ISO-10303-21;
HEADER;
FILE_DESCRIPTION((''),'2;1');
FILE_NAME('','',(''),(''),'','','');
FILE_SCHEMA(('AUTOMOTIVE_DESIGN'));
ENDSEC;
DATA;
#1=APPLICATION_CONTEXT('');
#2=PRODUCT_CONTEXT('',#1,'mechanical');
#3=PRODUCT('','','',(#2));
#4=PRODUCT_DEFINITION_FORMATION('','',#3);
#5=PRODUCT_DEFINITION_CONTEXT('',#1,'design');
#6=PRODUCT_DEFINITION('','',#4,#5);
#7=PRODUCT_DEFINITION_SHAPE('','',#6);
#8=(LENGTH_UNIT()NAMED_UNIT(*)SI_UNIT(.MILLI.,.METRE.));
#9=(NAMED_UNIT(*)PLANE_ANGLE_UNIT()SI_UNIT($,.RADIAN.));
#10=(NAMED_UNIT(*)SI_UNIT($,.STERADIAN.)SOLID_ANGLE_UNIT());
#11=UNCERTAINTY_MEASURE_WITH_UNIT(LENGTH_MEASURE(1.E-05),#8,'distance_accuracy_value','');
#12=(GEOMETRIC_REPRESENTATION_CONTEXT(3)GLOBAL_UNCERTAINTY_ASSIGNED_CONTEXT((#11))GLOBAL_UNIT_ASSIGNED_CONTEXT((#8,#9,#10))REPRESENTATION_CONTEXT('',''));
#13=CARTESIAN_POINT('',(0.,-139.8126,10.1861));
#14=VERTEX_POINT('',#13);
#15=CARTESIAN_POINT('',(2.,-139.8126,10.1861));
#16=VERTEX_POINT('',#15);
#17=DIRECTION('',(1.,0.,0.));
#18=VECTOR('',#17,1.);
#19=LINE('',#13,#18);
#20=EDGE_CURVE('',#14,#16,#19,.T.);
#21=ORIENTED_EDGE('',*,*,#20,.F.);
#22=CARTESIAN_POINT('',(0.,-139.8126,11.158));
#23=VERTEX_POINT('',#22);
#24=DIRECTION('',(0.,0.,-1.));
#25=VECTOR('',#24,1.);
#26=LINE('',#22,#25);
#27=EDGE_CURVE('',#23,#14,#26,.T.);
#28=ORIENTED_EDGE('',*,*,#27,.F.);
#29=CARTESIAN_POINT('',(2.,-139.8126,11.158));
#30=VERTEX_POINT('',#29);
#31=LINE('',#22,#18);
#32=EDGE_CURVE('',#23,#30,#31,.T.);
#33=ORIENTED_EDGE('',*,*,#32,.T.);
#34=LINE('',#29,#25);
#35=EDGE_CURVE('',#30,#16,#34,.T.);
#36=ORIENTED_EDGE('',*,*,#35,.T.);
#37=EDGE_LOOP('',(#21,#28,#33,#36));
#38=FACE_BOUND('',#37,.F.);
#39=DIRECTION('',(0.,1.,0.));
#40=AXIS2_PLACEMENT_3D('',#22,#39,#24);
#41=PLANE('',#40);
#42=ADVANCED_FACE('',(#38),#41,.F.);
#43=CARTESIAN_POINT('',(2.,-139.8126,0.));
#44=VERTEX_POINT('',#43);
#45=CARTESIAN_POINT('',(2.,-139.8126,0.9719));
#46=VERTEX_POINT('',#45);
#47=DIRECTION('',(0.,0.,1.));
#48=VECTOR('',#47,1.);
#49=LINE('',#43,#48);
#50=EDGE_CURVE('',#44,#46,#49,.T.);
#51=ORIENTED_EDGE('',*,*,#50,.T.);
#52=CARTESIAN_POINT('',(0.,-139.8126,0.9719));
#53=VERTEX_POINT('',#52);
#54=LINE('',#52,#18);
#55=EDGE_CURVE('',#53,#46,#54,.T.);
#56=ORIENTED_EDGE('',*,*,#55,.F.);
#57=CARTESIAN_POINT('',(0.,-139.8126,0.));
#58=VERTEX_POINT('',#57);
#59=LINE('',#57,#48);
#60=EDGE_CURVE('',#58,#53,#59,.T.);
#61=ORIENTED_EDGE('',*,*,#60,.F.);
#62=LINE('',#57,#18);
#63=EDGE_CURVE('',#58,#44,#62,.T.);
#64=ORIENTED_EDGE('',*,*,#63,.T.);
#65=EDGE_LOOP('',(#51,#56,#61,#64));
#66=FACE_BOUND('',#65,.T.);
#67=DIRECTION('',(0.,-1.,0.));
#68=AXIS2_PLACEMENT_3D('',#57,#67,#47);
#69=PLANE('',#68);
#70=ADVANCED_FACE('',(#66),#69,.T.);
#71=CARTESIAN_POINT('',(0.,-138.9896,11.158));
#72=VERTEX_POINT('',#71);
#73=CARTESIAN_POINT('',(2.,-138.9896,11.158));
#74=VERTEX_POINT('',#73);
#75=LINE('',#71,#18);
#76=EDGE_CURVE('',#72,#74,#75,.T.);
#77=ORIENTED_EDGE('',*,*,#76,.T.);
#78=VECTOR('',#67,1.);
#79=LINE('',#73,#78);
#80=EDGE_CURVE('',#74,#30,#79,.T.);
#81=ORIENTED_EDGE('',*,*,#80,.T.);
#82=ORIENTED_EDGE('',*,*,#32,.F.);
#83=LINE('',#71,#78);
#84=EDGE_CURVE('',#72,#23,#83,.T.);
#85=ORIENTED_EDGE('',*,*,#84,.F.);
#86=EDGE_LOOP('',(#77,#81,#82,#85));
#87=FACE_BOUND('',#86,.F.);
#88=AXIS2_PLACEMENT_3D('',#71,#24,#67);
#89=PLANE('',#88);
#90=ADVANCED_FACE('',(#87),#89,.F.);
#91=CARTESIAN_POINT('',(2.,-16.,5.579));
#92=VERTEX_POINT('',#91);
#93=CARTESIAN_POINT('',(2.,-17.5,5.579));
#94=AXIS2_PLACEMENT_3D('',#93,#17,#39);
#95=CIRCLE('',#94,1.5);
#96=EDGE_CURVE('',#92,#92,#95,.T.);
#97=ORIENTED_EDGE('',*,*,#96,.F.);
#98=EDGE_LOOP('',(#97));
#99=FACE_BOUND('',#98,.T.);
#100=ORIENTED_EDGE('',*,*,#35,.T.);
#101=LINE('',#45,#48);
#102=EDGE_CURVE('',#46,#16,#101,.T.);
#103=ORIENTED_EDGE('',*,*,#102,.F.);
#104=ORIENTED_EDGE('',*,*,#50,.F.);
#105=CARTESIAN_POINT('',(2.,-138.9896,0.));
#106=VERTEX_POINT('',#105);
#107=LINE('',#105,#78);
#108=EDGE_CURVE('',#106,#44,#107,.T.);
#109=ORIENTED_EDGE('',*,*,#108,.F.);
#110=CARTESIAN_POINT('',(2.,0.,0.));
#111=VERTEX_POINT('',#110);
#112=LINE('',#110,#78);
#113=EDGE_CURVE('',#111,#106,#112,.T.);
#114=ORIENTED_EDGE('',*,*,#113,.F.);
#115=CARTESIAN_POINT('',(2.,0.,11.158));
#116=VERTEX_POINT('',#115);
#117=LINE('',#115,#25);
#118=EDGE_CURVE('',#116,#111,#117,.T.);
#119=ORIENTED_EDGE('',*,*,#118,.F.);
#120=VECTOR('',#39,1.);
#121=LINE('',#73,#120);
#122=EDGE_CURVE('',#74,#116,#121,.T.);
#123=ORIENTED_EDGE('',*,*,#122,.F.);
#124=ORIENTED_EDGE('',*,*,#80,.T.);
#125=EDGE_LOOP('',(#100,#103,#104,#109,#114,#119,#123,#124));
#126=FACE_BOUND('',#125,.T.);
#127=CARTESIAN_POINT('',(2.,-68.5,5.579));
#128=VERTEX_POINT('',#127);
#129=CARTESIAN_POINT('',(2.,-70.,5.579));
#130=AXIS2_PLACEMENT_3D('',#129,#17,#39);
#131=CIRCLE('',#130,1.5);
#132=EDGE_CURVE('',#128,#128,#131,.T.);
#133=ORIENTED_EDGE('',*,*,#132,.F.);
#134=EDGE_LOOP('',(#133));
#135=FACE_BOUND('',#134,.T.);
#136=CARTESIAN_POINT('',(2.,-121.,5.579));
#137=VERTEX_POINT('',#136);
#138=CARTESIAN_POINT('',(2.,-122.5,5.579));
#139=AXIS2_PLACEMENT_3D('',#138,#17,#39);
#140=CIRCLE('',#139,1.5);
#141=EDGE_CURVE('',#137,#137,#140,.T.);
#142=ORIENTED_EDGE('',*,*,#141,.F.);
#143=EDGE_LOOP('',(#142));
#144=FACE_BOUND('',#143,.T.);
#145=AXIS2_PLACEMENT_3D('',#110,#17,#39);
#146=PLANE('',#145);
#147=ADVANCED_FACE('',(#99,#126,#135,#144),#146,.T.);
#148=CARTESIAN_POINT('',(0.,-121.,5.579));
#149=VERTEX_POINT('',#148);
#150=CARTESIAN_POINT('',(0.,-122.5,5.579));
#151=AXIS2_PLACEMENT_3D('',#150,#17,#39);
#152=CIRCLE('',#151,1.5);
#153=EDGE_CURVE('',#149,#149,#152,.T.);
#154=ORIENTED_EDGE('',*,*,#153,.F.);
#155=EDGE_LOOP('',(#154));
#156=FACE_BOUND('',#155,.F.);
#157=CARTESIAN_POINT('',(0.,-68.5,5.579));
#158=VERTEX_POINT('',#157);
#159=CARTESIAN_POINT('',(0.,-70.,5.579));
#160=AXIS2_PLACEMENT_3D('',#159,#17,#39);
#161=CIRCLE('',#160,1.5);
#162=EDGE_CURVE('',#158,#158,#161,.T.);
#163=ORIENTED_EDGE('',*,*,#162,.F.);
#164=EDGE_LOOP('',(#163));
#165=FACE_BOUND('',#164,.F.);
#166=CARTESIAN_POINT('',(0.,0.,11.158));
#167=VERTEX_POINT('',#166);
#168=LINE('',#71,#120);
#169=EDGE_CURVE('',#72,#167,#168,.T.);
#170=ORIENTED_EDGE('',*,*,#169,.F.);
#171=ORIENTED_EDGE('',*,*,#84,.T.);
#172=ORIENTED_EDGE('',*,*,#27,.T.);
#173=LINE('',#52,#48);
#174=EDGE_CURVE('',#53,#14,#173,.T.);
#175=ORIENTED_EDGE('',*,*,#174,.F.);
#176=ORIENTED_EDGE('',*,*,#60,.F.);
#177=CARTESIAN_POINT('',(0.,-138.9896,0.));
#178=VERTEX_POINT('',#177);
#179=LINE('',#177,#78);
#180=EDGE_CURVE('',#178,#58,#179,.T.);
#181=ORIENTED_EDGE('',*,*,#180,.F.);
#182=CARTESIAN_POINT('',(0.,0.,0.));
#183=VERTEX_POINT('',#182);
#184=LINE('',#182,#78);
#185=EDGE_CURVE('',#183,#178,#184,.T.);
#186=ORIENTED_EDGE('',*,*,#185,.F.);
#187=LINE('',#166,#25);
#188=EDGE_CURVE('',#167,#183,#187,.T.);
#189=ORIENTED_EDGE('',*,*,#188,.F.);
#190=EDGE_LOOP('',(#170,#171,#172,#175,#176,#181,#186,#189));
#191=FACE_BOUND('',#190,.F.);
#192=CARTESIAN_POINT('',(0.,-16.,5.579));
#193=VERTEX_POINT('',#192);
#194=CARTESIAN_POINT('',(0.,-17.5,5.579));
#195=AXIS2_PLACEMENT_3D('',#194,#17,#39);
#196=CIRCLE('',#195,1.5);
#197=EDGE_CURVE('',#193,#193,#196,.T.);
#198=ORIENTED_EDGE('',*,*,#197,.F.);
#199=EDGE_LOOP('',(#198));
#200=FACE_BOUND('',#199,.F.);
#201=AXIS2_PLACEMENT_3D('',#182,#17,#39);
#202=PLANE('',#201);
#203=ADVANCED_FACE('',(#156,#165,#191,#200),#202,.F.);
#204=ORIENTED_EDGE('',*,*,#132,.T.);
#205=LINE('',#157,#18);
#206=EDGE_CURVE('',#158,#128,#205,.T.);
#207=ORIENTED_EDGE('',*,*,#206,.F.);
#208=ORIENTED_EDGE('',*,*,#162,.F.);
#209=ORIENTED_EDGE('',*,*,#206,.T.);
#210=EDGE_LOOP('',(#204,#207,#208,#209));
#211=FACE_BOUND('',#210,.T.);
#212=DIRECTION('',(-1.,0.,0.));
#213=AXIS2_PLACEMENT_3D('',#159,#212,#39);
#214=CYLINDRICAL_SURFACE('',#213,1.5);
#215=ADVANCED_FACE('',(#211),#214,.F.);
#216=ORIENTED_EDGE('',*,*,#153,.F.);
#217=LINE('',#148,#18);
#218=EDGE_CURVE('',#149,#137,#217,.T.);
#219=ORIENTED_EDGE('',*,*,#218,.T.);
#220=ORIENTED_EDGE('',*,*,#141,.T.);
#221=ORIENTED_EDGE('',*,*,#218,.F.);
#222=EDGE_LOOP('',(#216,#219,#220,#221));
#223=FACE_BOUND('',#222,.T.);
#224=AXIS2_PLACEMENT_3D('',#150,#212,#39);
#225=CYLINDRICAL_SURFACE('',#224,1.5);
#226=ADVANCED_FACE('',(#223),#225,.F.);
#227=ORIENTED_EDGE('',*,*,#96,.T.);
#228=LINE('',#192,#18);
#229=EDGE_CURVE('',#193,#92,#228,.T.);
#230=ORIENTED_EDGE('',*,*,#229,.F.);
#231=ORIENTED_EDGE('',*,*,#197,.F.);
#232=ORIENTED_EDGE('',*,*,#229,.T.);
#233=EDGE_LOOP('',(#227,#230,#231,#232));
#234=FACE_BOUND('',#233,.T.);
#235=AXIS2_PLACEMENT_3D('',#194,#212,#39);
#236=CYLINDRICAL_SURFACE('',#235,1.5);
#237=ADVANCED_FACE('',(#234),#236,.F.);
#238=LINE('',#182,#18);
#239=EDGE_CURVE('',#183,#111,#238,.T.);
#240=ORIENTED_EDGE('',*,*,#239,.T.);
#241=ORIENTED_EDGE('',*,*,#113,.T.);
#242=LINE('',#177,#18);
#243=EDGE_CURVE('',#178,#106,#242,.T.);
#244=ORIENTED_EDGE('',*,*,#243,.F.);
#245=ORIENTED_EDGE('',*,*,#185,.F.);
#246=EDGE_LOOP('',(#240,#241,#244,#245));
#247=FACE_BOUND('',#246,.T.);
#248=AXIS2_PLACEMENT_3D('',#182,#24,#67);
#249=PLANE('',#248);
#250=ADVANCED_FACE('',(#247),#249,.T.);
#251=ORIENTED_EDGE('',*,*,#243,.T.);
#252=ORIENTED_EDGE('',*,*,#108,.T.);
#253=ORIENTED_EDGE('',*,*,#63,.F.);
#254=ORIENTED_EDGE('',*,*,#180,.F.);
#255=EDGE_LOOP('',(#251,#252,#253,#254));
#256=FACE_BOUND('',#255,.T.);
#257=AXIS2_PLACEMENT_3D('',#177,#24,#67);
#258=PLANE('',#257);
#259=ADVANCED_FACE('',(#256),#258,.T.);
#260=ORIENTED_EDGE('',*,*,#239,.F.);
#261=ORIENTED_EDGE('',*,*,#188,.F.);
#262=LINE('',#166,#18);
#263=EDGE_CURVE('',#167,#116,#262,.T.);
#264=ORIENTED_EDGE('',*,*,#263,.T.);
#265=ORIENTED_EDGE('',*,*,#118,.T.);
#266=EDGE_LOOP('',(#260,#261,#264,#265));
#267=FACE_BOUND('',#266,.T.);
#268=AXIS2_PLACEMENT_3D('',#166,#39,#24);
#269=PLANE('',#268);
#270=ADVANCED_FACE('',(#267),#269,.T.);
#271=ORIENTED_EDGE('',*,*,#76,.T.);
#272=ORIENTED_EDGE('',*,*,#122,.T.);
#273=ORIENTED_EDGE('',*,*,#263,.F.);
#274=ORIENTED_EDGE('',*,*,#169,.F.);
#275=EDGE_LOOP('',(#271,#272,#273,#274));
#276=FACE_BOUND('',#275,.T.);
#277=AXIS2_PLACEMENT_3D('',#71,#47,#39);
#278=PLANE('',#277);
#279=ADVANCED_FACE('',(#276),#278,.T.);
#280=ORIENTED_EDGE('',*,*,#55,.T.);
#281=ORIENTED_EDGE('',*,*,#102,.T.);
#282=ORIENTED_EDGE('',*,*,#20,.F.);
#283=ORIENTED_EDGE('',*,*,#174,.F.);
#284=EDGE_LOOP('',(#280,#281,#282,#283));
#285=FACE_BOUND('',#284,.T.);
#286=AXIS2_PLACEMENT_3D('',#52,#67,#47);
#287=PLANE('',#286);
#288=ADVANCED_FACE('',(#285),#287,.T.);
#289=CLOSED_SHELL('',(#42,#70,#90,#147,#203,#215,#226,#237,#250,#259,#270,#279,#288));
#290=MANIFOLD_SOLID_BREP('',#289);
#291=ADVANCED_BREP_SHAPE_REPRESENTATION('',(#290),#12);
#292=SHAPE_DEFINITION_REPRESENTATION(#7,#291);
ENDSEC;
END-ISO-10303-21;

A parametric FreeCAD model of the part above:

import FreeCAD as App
import Part
import Sketcher

V = App.Vector


def add_polygon(sketch, points):
    """Adds a closed chain of lines whose ends are joined by coincident constraints."""
    first, n = sketch.GeometryCount, len(points)
    for a, b in zip(points, points[1:] + points[:1]):
        sketch.addGeometry(Part.LineSegment(App.Vector(*a, 0), App.Vector(*b, 0)), False)
    for i in range(n):
        sketch.addConstraint(Sketcher.Constraint("Coincident", first + i, 2, first + (i + 1) % n, 1))

doc = App.newDocument("Part")
body = doc.addObject("PartDesign::Body", "Body")

sketch1 = doc.addObject("Sketcher::SketchObject", "Sketch")
body.addObject(sketch1)
sketch1.AttachmentSupport = (doc.YZ_Plane, [""])
sketch1.MapMode = "FlatFace"
add_polygon(sketch1, [(0, 11.2), (-139.8, 11.2), (-139.8, 0), (0, 0)])
sketch1.addGeometry(Part.Circle(V(-122.5, 5.6, 0), V(0, 0, 1), 1.5), False)
sketch1.addGeometry(Part.Circle(V(-70, 5.6, 0), V(0, 0, 1), 1.5), False)
sketch1.addGeometry(Part.Circle(V(-17.5, 5.6, 0), V(0, 0, 1), 1.5), False)
sketch1.addConstraint(Sketcher.Constraint("Horizontal", 0))
sketch1.addConstraint(Sketcher.Constraint("Vertical", 1))
sketch1.addConstraint(Sketcher.Constraint("Horizontal", 2))
sketch1.addConstraint(Sketcher.Constraint("Vertical", 3))
sketch1.addConstraint(Sketcher.Constraint("Coincident", 2, 2, -1, 1))
sketch1.addConstraint(Sketcher.Constraint("Equal", 4, 5))
sketch1.addConstraint(Sketcher.Constraint("Equal", 5, 6))
sketch1.addConstraint(Sketcher.Constraint("Horizontal", 4, 3, 5, 3))
sketch1.addConstraint(Sketcher.Constraint("Horizontal", 5, 3, 6, 3))
sketch1.addConstraint(Sketcher.Constraint("Diameter", 4, 3.0))
sketch1.addConstraint(Sketcher.Constraint("DistanceX", 5, 3, -1, 1, 70.0))
sketch1.addConstraint(Sketcher.Constraint("DistanceX", 4, 3, 6, 3, 105.0))
sketch1.addConstraint(Sketcher.Constraint("DistanceX", 4, 3, -1, 1, 122.5))
sketch1.addConstraint(Sketcher.Constraint("DistanceY", 1, 2, 1, 1, 11.158))
sketch1.addConstraint(Sketcher.Constraint("DistanceX", 0, 2, 0, 1, 139.8126))
sketch1.addConstraint(Sketcher.Constraint("DistanceY", -1, 1, 4, 3, 5.579))
pad1 = doc.addObject("PartDesign::Pad", "Pad")
body.addObject(pad1)
pad1.Profile = sketch1
pad1.Length = 2

doc.recompute()
